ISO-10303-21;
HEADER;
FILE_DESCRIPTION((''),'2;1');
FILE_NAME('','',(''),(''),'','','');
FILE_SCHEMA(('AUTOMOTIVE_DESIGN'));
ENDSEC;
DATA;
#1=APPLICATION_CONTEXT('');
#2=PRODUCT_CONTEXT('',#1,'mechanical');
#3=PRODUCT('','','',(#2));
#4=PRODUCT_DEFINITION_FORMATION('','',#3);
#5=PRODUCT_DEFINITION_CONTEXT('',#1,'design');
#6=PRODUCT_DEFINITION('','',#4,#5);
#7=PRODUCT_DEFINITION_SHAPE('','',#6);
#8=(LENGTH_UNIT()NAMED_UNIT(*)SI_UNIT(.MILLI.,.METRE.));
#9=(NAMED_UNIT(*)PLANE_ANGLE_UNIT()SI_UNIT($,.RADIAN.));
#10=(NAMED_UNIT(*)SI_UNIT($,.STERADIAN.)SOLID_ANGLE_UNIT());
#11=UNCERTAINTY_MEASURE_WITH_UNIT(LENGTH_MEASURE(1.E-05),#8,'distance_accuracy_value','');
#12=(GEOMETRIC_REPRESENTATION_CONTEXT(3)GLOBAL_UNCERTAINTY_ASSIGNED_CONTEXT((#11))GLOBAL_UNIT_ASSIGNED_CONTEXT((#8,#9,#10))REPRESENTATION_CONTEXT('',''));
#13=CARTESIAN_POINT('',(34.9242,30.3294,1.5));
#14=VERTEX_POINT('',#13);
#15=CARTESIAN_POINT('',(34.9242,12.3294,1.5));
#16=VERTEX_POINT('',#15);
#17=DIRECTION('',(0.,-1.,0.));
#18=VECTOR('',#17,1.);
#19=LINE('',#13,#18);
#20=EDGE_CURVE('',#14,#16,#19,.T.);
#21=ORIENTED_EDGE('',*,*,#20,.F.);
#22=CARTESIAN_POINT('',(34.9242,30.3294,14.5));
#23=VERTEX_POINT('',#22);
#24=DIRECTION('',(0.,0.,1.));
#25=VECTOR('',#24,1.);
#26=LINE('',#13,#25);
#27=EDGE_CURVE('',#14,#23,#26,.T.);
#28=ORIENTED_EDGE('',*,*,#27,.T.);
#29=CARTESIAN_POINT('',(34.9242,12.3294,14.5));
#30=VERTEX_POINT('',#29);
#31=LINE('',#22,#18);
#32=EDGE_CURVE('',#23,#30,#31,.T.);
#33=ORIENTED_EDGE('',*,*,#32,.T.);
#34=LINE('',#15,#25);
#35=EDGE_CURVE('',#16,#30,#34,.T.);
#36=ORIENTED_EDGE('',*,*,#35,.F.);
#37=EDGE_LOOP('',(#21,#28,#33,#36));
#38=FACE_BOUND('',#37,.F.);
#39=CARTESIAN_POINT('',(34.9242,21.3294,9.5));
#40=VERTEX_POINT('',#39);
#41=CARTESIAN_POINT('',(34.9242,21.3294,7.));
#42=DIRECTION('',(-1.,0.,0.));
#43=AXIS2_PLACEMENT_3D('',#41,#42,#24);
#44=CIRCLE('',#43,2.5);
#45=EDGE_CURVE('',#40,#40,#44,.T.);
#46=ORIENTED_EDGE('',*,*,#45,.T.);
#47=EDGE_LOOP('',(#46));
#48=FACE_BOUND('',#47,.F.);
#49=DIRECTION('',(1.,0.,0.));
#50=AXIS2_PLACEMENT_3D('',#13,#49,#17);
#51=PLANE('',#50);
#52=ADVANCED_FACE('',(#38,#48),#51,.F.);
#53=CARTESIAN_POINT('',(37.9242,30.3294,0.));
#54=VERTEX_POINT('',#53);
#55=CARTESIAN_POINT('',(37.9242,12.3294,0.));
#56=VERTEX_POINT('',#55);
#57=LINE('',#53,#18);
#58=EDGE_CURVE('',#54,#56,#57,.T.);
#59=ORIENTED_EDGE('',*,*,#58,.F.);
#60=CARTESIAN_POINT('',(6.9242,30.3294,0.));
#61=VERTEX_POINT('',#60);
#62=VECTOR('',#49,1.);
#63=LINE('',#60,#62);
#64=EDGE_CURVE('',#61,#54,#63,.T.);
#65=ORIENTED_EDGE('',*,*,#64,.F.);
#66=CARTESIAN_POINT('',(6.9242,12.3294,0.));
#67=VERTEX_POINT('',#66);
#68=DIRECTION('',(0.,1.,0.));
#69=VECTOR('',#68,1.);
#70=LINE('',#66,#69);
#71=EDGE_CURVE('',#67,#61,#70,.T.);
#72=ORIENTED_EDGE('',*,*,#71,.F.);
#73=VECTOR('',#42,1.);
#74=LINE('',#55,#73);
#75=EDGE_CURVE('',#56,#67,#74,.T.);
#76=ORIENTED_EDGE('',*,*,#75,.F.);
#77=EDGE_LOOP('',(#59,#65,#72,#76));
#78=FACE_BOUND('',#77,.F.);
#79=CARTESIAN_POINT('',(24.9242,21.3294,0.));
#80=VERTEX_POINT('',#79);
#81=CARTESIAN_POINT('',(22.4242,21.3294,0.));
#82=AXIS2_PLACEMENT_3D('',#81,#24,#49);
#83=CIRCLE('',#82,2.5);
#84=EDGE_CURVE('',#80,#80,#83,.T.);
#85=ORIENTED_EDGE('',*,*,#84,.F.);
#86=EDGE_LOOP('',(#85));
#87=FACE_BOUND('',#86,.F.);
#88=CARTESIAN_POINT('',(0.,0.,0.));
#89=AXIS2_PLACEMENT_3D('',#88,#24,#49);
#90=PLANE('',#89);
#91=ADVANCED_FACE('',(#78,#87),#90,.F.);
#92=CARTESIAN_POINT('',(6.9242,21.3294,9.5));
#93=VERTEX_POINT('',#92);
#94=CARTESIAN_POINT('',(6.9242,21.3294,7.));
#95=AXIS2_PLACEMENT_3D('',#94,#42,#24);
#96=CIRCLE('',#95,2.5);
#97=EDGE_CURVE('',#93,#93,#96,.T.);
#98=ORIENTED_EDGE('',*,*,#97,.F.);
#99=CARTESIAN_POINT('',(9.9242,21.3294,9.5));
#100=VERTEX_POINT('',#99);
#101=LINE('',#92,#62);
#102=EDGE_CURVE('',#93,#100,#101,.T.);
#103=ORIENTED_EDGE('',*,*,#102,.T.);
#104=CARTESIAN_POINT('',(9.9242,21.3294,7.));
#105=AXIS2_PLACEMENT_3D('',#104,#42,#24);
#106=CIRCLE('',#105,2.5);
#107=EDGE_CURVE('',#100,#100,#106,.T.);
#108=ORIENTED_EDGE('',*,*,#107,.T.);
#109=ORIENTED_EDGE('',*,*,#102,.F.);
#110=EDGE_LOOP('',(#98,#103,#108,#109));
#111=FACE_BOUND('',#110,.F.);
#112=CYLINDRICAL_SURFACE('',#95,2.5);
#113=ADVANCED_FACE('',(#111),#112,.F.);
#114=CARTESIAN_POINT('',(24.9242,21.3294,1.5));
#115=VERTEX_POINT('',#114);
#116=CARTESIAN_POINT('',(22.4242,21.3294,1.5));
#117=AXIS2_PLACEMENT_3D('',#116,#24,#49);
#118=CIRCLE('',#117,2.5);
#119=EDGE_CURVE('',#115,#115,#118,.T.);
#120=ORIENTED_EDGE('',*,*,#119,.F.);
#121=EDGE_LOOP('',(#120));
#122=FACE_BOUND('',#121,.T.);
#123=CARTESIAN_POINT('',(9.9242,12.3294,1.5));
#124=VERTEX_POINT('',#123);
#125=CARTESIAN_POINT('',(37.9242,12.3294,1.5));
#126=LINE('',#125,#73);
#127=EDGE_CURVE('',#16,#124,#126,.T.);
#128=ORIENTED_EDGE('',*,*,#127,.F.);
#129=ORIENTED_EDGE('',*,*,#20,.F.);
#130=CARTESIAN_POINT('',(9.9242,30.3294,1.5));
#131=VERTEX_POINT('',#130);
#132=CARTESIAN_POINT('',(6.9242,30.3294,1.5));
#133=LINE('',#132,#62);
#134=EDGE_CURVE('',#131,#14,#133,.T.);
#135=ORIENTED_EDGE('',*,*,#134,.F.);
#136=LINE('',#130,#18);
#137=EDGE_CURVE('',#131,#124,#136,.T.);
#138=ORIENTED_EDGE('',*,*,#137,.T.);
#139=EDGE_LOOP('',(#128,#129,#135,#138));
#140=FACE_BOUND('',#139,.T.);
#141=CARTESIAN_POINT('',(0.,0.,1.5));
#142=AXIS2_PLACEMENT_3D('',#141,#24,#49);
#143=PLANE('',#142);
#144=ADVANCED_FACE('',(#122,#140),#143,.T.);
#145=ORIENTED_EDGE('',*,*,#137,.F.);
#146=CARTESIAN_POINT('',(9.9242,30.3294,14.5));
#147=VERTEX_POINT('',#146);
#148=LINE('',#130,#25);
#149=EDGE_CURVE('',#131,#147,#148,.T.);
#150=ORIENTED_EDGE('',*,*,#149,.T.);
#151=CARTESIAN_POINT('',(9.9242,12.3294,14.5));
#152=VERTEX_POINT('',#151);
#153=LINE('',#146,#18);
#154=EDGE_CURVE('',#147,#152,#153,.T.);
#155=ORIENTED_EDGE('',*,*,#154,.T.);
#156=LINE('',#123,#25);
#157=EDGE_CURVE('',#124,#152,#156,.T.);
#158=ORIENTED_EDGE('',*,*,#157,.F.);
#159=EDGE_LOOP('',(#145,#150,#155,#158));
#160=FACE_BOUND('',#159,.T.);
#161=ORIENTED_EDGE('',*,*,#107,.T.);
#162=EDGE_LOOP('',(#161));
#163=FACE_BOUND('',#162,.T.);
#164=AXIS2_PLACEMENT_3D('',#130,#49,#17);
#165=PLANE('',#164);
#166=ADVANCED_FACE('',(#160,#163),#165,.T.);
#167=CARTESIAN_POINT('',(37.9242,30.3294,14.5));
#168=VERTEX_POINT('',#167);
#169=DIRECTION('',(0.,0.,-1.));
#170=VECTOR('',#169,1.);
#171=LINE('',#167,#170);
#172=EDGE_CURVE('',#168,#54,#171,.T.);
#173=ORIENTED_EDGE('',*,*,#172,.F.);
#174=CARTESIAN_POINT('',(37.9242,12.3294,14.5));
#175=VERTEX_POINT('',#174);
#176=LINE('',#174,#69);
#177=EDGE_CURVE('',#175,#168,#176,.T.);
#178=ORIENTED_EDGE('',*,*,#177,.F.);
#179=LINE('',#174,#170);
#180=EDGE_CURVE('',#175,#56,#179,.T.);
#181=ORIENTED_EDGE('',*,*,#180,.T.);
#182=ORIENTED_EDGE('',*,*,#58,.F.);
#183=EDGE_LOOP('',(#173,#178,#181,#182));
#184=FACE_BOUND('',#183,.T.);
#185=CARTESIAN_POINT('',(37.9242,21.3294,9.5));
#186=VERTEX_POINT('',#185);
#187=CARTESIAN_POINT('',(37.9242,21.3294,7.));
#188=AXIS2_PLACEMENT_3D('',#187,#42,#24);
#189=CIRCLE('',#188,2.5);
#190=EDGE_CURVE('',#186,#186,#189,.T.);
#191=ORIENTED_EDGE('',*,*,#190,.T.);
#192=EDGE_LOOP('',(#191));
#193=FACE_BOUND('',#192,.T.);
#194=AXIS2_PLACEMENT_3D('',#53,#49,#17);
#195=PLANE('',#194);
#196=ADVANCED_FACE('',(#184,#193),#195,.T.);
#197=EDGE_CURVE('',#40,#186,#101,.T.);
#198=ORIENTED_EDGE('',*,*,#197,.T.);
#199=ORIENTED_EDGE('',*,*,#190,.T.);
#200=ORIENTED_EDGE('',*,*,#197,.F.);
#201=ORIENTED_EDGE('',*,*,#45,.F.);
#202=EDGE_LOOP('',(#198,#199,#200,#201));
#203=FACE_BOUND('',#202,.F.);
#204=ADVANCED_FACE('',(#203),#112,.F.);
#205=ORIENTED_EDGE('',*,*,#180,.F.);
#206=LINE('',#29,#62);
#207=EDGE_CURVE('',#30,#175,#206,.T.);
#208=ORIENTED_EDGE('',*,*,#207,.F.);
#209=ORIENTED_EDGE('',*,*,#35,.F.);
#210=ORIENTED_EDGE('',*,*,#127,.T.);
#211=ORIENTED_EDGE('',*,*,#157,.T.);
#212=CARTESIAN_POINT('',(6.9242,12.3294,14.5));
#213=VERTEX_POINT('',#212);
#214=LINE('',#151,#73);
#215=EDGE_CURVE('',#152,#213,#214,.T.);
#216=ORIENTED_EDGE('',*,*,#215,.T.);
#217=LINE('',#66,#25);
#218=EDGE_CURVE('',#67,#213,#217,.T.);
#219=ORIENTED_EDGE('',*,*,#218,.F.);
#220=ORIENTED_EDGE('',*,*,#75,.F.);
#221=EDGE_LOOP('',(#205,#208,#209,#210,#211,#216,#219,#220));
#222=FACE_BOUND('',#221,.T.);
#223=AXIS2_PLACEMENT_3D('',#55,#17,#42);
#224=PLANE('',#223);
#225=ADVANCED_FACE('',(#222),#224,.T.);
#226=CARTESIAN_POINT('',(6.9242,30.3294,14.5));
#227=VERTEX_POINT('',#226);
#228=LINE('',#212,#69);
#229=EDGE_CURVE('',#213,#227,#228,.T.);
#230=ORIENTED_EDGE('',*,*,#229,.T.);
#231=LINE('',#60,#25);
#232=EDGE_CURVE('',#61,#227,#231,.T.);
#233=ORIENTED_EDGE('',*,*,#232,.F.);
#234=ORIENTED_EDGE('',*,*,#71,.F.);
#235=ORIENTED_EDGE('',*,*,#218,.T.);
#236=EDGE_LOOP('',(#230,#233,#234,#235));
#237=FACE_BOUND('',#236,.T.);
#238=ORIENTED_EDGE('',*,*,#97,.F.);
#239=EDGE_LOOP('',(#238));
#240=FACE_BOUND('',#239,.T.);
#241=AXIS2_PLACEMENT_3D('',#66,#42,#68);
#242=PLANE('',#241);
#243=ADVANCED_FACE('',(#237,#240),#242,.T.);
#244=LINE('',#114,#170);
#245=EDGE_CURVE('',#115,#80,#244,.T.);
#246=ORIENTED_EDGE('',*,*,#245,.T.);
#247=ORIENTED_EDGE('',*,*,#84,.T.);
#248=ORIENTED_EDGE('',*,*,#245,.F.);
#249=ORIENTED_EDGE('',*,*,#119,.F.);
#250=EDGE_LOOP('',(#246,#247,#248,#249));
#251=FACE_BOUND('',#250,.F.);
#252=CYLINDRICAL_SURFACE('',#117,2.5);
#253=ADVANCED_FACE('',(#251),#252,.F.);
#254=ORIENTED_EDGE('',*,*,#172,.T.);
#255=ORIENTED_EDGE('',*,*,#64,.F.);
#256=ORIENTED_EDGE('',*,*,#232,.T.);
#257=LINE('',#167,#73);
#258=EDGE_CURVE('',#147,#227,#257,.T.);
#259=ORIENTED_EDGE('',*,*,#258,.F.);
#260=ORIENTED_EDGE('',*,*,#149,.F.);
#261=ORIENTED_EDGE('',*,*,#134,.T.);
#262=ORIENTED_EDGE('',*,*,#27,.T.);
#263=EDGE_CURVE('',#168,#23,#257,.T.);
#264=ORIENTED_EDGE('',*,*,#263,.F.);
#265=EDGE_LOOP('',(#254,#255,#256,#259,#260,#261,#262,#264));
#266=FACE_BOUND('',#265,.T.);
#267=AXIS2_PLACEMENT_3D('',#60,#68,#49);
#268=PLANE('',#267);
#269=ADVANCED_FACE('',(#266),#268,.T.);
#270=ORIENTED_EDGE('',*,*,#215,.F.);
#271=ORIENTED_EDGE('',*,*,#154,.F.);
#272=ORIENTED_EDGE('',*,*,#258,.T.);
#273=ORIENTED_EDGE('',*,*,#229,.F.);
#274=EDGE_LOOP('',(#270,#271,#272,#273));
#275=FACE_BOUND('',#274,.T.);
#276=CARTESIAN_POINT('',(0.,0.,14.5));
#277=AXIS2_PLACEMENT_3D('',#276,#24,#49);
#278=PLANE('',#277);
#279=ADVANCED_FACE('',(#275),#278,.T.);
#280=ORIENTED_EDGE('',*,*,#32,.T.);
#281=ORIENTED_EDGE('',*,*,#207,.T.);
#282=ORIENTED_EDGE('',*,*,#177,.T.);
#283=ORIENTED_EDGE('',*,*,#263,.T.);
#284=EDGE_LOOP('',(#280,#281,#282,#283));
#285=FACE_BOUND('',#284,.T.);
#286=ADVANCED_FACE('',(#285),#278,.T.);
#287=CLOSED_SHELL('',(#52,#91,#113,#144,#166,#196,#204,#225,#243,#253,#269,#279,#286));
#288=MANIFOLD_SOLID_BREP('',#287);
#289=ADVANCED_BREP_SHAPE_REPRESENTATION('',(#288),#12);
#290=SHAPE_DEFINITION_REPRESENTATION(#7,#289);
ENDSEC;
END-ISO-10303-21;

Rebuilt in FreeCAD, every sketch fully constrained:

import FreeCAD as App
import Part
import Sketcher


def add_polygon(sketch, points):
    """Adds a closed chain of lines whose ends are joined by coincident constraints."""
    first, n = sketch.GeometryCount, len(points)
    for a, b in zip(points, points[1:] + points[:1]):
        sketch.addGeometry(Part.LineSegment(App.Vector(*a, 0), App.Vector(*b, 0)), False)
    for i in range(n):
        sketch.addConstraint(Sketcher.Constraint("Coincident", first + i, 2, first + (i + 1) % n, 1))

doc = App.newDocument("Part")
body = doc.addObject("PartDesign::Body", "Body")

# Sketch on XY plane
sketch1 = doc.addObject("Sketcher::SketchObject", "Sketch")
body.addObject(sketch1)
sketch1.AttachmentSupport = (doc.XY_Plane, [""])
sketch1.MapMode = "FlatFace"
add_polygon(sketch1, [(37.9242, 30.3294), (6.9242, 30.3294), (6.9242, 12.3294), (37.9242, 12.3294)])  # lines 0-3
sketch1.addConstraint(Sketcher.Constraint("Horizontal", 0))
sketch1.addConstraint(Sketcher.Constraint("Vertical", 1))
sketch1.addConstraint(Sketcher.Constraint("Horizontal", 2))
sketch1.addConstraint(Sketcher.Constraint("Vertical", 3))
sketch1.addConstraint(Sketcher.Constraint("DistanceX", 0, 2, 0, 1, 31.0))
sketch1.addConstraint(Sketcher.Constraint("DistanceY", 1, 2, 1, 1, 18.0))
sketch1.addConstraint(Sketcher.Constraint("DistanceX", -1, 1, 0, 2, 6.9242))
sketch1.addConstraint(Sketcher.Constraint("DistanceY", -1, 1, 0, 2, 30.3294))
pad1 = doc.addObject("PartDesign::Pad", "Pad")
body.addObject(pad1)
pad1.Profile = sketch1
pad1.Length = 1.5

# Sketch on XY plane
sketch2 = doc.addObject("Sketcher::SketchObject", "Sketch001")
body.addObject(sketch2)
sketch2.AttachmentSupport = (doc.XY_Plane, [""])
sketch2.MapMode = "FlatFace"
sketch2.AttachmentOffset = App.Placement(App.Vector(0, 0, 1.5), App.Rotation())
add_polygon(sketch2, [(37.9242, 12.3294), (37.9242, 30.3294), (34.9242, 30.3294), (34.9242, 12.3294)])  # lines 0-3
add_polygon(sketch2, [(9.9242, 12.3294), (9.9242, 30.3294), (6.9242, 30.3294), (6.9242, 12.3294)])  # lines 4-7
sketch2.addConstraint(Sketcher.Constraint("Vertical", 0))
sketch2.addConstraint(Sketcher.Constraint("Horizontal", 1))
sketch2.addConstraint(Sketcher.Constraint("Vertical", 2))
sketch2.addConstraint(Sketcher.Constraint("Horizontal", 3))
sketch2.addConstraint(Sketcher.Constraint("Vertical", 4))
sketch2.addConstraint(Sketcher.Constraint("Horizontal", 5))
sketch2.addConstraint(Sketcher.Constraint("Vertical", 6))
sketch2.addConstraint(Sketcher.Constraint("Horizontal", 7))
sketch2.addConstraint(Sketcher.Constraint("Horizontal", 1, 2, 4, 2))
sketch2.addConstraint(Sketcher.Constraint("Horizontal", 3, 2, 6, 2))
sketch2.addConstraint(Sketcher.Constraint("Equal", 3, 5))
sketch2.addConstraint(Sketcher.Constraint("DistanceX", 1, 2, 1, 1, 3.0))
sketch2.addConstraint(Sketcher.Constraint("DistanceY", 0, 1, 0, 2, 18.0))
sketch2.addConstraint(Sketcher.Constraint("DistanceX", 4, 2, 1, 2, 25.0))
sketch2.addConstraint(Sketcher.Constraint("DistanceX", -1, 1, 0, 2, 37.9242))
sketch2.addConstraint(Sketcher.Constraint("DistanceY", -1, 1, 0, 2, 30.3294))
pad2 = doc.addObject("PartDesign::Pad", "Pad001")
body.addObject(pad2)
pad2.Profile = sketch2
pad2.Length = 13

# Sketch on YZ plane
sketch3 = doc.addObject("Sketcher::SketchObject", "Sketch002")
body.addObject(sketch3)
sketch3.AttachmentSupport = (doc.YZ_Plane, [""])
sketch3.MapMode = "FlatFace"
sketch3.AttachmentOffset = App.Placement(App.Vector(0, 0, 6.9242), App.Rotation())
sketch3.addGeometry(Part.Circle(App.Vector(21.3294, 7, 0), App.Vector(0, 0, 1), 2.5), False)
sketch3.addConstraint(Sketcher.Constraint("Diameter", 0, 5.0))
sketch3.addConstraint(Sketcher.Constraint("DistanceY", -1, 1, 0, 3, 7.0))
sketch3.addConstraint(Sketcher.Constraint("DistanceX", -1, 1, 0, 3, 21.3294))
pocket1 = doc.addObject("PartDesign::Pocket", "Pocket")
body.addObject(pocket1)
pocket1.Profile = sketch3
pocket1.Length = 50
pocket1.Reversed = True

# Sketch on XY plane
sketch4 = doc.addObject("Sketcher::SketchObject", "Sketch003")
body.addObject(sketch4)
sketch4.AttachmentSupport = (doc.XY_Plane, [""])
sketch4.MapMode = "FlatFace"
sketch4.AttachmentOffset = App.Placement(App.Vector(0, 0, 1.5), App.Rotation())
sketch4.addGeometry(Part.Circle(App.Vector(22.4242, 21.3294, 0), App.Vector(0, 0, 1), 2.5), False)
sketch4.addConstraint(Sketcher.Constraint("Diameter", 0, 5.0))
sketch4.addConstraint(Sketcher.Constraint("DistanceX", -1, 1, 0, 3, 22.4242))
sketch4.addConstraint(Sketcher.Constraint("DistanceY", -1, 1, 0, 3, 21.3294))
pocket2 = doc.addObject("PartDesign::Pocket", "Pocket001")
body.addObject(pocket2)
pocket2.Profile = sketch4
pocket2.Length = 50

doc.recompute()
